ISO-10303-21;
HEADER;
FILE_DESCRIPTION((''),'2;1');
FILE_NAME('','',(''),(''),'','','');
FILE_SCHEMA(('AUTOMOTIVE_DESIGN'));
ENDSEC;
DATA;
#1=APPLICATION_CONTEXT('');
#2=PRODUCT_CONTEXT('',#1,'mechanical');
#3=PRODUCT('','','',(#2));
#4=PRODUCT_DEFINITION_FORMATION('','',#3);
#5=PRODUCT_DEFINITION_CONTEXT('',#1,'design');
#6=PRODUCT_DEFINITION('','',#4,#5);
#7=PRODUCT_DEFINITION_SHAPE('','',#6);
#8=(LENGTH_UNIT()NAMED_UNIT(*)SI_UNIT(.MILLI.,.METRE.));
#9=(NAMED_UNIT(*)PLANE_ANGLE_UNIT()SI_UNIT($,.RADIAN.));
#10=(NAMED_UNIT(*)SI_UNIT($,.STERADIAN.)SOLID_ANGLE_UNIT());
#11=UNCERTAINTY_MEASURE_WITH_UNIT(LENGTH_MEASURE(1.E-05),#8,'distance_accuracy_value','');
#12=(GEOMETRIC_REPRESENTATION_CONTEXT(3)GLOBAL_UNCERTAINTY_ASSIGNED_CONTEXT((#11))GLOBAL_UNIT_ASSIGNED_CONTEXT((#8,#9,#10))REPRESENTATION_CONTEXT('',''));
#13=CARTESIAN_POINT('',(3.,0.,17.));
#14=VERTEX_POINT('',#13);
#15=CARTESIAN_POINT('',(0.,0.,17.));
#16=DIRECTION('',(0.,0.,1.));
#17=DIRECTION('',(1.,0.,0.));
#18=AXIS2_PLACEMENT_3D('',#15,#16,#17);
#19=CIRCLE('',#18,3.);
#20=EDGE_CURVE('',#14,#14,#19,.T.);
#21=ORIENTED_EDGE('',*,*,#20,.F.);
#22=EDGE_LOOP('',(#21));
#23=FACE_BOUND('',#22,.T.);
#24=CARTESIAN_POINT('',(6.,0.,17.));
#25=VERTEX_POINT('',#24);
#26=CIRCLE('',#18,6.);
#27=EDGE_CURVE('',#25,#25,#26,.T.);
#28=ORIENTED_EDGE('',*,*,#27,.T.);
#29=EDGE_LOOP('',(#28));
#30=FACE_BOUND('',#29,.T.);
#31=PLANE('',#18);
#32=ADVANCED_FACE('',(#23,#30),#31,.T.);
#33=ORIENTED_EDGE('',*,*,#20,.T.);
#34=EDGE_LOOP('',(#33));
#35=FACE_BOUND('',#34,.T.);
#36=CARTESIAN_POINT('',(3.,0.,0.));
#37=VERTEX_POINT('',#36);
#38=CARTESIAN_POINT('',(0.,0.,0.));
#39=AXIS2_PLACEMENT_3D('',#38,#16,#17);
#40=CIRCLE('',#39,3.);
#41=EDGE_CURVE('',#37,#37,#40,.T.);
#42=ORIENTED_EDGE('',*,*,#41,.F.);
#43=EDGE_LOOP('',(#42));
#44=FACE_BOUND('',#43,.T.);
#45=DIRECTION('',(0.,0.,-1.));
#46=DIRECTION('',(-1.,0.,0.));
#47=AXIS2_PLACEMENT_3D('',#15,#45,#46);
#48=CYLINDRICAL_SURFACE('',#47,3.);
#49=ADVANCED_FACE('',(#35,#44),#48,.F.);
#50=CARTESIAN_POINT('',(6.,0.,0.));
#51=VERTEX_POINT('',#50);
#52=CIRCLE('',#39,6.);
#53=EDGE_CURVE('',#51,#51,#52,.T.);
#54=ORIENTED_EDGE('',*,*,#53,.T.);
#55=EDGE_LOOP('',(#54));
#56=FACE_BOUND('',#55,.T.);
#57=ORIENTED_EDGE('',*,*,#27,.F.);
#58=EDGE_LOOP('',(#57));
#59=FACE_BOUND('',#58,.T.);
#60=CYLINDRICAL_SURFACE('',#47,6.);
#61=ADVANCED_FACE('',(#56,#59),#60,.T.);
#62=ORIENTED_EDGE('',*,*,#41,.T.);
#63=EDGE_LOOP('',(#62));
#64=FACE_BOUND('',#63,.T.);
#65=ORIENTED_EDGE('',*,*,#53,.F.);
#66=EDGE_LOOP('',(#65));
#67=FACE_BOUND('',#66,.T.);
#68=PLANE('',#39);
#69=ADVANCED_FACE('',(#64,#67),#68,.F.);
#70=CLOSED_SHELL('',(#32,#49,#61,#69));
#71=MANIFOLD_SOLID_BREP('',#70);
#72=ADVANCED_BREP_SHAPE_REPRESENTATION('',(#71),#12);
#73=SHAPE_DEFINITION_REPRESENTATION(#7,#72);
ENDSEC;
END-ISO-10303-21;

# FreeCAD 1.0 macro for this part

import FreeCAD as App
import Part
import Sketcher

V = App.Vector
Q = App.Units.Quantity

doc = App.newDocument("Part")
body = doc.addObject("PartDesign::Body", "Body")

sketch1 = body.newObject("Sketcher::SketchObject", "Sketch")
sketch1.AttachmentSupport = (doc.getObject("XY_Plane"), [""])
sketch1.MapMode = "FlatFace"
sketch1.addGeometry(Part.Circle(V(0, 0, 0), V(0, 0, 1), 6), False)
sketch1.addGeometry(Part.Circle(V(0, 0, 0), V(0, 0, 1), 3), False)
sketch1.addConstraint(Sketcher.Constraint("Coincident", 0, 3, -1, 1))
sketch1.addConstraint(Sketcher.Constraint("Coincident", 1, 3, -1, 1))
sketch1.addConstraint(Sketcher.Constraint("Diameter", 0, Q("12 mm")))
sketch1.addConstraint(Sketcher.Constraint("Diameter", 1, Q("6 mm")))
pad1 = body.newObject("PartDesign::Pad", "Pad")
pad1.Profile = sketch1
pad1.Length = 17

doc.recompute()
